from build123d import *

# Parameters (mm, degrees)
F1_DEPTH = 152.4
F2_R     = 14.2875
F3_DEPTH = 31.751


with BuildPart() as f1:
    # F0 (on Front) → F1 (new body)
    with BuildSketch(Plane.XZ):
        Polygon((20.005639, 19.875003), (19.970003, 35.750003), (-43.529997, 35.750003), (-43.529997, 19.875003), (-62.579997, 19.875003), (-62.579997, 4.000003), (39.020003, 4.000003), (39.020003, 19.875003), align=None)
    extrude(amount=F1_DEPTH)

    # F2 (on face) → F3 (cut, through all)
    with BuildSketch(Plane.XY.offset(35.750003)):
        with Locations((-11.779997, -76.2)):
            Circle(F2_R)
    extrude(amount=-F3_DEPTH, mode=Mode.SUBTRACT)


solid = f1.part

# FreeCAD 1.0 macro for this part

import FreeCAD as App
import Part
import Sketcher
from FreeCAD import Vector
Q = App.Units.Quantity

doc = App.newDocument("Part")
params = doc.addObject("Spreadsheet::Sheet", "Params")
for row, (alias, value) in enumerate([
    ("sketch1_width", "4 in"),
    ("sketch1_width2", "2.5 in"),
    ("sketch1_width3", "0.75 in"),
    ("sketch1_height", "0.625 in"),
    ("pad1_length", "6 in"),
    ("sketch2_diameter", "1.125 in"),
], start=1):
    params.set(f"A{row}", alias)
    params.set(f"B{row}", "=" + value)
    params.setAlias(f"B{row}", alias)

body = doc.addObject("PartDesign::Body", "Body")

# Sketch on XZ plane
sketch1 = body.newObject("Sketcher::SketchObject", "Sketch")
sketch1.AttachmentSupport = (doc.getObject("XZ_Plane"), [""])
sketch1.MapMode = "FlatFace"
sketch1.addGeometry(Part.LineSegment(Vector(20, 20, 0), Vector(20, 36, 0)), False)
sketch1.addGeometry(Part.LineSegment(Vector(20, 36, 0), Vector(-44, 36, 0)), False)
sketch1.addGeometry(Part.LineSegment(Vector(-44, 36, 0), Vector(-44, 20, 0)), False)
sketch1.addGeometry(Part.LineSegment(Vector(-44, 20, 0), Vector(-63, 20, 0)), False)
sketch1.addGeometry(Part.LineSegment(Vector(-63, 20, 0), Vector(-63, 4, 0)), False)
sketch1.addGeometry(Part.LineSegment(Vector(-63, 4, 0), Vector(39, 4, 0)), False)
sketch1.addGeometry(Part.LineSegment(Vector(39, 4, 0), Vector(39, 20, 0)), False)
sketch1.addGeometry(Part.LineSegment(Vector(39, 20, 0), Vector(20, 20, 0)), False)
sketch1.addConstraint(Sketcher.Constraint("Coincident", 0, 2, 1, 1))
sketch1.addConstraint(Sketcher.Constraint("Coincident", 1, 2, 2, 1))
sketch1.addConstraint(Sketcher.Constraint("Coincident", 2, 2, 3, 1))
sketch1.addConstraint(Sketcher.Constraint("Coincident", 3, 2, 4, 1))
sketch1.addConstraint(Sketcher.Constraint("Coincident", 4, 2, 5, 1))
sketch1.addConstraint(Sketcher.Constraint("Coincident", 5, 2, 6, 1))
sketch1.addConstraint(Sketcher.Constraint("Coincident", 6, 2, 7, 1))
sketch1.addConstraint(Sketcher.Constraint("Coincident", 7, 2, 0, 1))
sketch1.addConstraint(Sketcher.Constraint("Horizontal", 1))
sketch1.addConstraint(Sketcher.Constraint("Vertical", 2))
sketch1.addConstraint(Sketcher.Constraint("Horizontal", 3))
sketch1.addConstraint(Sketcher.Constraint("Vertical", 4))
sketch1.addConstraint(Sketcher.Constraint("Horizontal", 5))
sketch1.addConstraint(Sketcher.Constraint("Vertical", 6))
sketch1.addConstraint(Sketcher.Constraint("Horizontal", 7))
sketch1.addConstraint(Sketcher.Constraint("Horizontal", 3, 2, 6, 2))
sketch1.addConstraint(Sketcher.Constraint("Equal", 2, 4))
sketch1.addConstraint(Sketcher.Constraint("DistanceX", 5, 1, 5, 2, Q("4 in")))
sketch1.addConstraint(Sketcher.Constraint("DistanceX", 1, 2, 1, 1, Q("2.5 in")))
sketch1.addConstraint(Sketcher.Constraint("DistanceX", 3, 2, 3, 1, Q("0.75 in")))
sketch1.addConstraint(Sketcher.Constraint("DistanceY", 2, 2, 2, 1, Q("0.625 in")))
sketch1.addConstraint(Sketcher.Constraint("DistanceX", 7, 2, 7, 1, 19.014364))
sketch1.addConstraint(Sketcher.Constraint("DistanceX", -1, 1, 7, 2, 20.005639))
sketch1.addConstraint(Sketcher.Constraint("DistanceY", -1, 1, 0, 2, 35.750003))
sketch1.setExpression("Constraints[17]", "Params.sketch1_width")
sketch1.setExpression("Constraints[18]", "Params.sketch1_width2")
sketch1.setExpression("Constraints[19]", "Params.sketch1_width3")
sketch1.setExpression("Constraints[20]", "Params.sketch1_height")
pad1 = body.newObject("PartDesign::Pad", "Pad")
pad1.Profile = sketch1
pad1.setExpression("Length", "Params.pad1_length")

# Sketch on XY plane
sketch2 = body.newObject("Sketcher::SketchObject", "Sketch001")
sketch2.AttachmentSupport = (doc.getObject("XY_Plane"), [""])
sketch2.MapMode = "FlatFace"
sketch2.AttachmentOffset = App.Placement(Vector(0, 0, 35.750003), App.Rotation())
sketch2.addGeometry(Part.Circle(Vector(-12, -76, 0), Vector(0, 0, 1), 14), False)
sketch2.addConstraint(Sketcher.Constraint("Diameter", 0, Q("1.125 in")))
sketch2.addConstraint(Sketcher.Constraint("DistanceY", 0, 3, -1, 1, Q("3 in")))
sketch2.addConstraint(Sketcher.Constraint("DistanceX", 0, 3, -1, 1, 11.779997))
sketch2.setExpression("Constraints[0]", "Params.sketch2_diameter")
pocket1 = body.newObject("PartDesign::Pocket", "Pocket")
pocket1.Profile = sketch2
pocket1.Type = "ThroughAll"

doc.recompute()
